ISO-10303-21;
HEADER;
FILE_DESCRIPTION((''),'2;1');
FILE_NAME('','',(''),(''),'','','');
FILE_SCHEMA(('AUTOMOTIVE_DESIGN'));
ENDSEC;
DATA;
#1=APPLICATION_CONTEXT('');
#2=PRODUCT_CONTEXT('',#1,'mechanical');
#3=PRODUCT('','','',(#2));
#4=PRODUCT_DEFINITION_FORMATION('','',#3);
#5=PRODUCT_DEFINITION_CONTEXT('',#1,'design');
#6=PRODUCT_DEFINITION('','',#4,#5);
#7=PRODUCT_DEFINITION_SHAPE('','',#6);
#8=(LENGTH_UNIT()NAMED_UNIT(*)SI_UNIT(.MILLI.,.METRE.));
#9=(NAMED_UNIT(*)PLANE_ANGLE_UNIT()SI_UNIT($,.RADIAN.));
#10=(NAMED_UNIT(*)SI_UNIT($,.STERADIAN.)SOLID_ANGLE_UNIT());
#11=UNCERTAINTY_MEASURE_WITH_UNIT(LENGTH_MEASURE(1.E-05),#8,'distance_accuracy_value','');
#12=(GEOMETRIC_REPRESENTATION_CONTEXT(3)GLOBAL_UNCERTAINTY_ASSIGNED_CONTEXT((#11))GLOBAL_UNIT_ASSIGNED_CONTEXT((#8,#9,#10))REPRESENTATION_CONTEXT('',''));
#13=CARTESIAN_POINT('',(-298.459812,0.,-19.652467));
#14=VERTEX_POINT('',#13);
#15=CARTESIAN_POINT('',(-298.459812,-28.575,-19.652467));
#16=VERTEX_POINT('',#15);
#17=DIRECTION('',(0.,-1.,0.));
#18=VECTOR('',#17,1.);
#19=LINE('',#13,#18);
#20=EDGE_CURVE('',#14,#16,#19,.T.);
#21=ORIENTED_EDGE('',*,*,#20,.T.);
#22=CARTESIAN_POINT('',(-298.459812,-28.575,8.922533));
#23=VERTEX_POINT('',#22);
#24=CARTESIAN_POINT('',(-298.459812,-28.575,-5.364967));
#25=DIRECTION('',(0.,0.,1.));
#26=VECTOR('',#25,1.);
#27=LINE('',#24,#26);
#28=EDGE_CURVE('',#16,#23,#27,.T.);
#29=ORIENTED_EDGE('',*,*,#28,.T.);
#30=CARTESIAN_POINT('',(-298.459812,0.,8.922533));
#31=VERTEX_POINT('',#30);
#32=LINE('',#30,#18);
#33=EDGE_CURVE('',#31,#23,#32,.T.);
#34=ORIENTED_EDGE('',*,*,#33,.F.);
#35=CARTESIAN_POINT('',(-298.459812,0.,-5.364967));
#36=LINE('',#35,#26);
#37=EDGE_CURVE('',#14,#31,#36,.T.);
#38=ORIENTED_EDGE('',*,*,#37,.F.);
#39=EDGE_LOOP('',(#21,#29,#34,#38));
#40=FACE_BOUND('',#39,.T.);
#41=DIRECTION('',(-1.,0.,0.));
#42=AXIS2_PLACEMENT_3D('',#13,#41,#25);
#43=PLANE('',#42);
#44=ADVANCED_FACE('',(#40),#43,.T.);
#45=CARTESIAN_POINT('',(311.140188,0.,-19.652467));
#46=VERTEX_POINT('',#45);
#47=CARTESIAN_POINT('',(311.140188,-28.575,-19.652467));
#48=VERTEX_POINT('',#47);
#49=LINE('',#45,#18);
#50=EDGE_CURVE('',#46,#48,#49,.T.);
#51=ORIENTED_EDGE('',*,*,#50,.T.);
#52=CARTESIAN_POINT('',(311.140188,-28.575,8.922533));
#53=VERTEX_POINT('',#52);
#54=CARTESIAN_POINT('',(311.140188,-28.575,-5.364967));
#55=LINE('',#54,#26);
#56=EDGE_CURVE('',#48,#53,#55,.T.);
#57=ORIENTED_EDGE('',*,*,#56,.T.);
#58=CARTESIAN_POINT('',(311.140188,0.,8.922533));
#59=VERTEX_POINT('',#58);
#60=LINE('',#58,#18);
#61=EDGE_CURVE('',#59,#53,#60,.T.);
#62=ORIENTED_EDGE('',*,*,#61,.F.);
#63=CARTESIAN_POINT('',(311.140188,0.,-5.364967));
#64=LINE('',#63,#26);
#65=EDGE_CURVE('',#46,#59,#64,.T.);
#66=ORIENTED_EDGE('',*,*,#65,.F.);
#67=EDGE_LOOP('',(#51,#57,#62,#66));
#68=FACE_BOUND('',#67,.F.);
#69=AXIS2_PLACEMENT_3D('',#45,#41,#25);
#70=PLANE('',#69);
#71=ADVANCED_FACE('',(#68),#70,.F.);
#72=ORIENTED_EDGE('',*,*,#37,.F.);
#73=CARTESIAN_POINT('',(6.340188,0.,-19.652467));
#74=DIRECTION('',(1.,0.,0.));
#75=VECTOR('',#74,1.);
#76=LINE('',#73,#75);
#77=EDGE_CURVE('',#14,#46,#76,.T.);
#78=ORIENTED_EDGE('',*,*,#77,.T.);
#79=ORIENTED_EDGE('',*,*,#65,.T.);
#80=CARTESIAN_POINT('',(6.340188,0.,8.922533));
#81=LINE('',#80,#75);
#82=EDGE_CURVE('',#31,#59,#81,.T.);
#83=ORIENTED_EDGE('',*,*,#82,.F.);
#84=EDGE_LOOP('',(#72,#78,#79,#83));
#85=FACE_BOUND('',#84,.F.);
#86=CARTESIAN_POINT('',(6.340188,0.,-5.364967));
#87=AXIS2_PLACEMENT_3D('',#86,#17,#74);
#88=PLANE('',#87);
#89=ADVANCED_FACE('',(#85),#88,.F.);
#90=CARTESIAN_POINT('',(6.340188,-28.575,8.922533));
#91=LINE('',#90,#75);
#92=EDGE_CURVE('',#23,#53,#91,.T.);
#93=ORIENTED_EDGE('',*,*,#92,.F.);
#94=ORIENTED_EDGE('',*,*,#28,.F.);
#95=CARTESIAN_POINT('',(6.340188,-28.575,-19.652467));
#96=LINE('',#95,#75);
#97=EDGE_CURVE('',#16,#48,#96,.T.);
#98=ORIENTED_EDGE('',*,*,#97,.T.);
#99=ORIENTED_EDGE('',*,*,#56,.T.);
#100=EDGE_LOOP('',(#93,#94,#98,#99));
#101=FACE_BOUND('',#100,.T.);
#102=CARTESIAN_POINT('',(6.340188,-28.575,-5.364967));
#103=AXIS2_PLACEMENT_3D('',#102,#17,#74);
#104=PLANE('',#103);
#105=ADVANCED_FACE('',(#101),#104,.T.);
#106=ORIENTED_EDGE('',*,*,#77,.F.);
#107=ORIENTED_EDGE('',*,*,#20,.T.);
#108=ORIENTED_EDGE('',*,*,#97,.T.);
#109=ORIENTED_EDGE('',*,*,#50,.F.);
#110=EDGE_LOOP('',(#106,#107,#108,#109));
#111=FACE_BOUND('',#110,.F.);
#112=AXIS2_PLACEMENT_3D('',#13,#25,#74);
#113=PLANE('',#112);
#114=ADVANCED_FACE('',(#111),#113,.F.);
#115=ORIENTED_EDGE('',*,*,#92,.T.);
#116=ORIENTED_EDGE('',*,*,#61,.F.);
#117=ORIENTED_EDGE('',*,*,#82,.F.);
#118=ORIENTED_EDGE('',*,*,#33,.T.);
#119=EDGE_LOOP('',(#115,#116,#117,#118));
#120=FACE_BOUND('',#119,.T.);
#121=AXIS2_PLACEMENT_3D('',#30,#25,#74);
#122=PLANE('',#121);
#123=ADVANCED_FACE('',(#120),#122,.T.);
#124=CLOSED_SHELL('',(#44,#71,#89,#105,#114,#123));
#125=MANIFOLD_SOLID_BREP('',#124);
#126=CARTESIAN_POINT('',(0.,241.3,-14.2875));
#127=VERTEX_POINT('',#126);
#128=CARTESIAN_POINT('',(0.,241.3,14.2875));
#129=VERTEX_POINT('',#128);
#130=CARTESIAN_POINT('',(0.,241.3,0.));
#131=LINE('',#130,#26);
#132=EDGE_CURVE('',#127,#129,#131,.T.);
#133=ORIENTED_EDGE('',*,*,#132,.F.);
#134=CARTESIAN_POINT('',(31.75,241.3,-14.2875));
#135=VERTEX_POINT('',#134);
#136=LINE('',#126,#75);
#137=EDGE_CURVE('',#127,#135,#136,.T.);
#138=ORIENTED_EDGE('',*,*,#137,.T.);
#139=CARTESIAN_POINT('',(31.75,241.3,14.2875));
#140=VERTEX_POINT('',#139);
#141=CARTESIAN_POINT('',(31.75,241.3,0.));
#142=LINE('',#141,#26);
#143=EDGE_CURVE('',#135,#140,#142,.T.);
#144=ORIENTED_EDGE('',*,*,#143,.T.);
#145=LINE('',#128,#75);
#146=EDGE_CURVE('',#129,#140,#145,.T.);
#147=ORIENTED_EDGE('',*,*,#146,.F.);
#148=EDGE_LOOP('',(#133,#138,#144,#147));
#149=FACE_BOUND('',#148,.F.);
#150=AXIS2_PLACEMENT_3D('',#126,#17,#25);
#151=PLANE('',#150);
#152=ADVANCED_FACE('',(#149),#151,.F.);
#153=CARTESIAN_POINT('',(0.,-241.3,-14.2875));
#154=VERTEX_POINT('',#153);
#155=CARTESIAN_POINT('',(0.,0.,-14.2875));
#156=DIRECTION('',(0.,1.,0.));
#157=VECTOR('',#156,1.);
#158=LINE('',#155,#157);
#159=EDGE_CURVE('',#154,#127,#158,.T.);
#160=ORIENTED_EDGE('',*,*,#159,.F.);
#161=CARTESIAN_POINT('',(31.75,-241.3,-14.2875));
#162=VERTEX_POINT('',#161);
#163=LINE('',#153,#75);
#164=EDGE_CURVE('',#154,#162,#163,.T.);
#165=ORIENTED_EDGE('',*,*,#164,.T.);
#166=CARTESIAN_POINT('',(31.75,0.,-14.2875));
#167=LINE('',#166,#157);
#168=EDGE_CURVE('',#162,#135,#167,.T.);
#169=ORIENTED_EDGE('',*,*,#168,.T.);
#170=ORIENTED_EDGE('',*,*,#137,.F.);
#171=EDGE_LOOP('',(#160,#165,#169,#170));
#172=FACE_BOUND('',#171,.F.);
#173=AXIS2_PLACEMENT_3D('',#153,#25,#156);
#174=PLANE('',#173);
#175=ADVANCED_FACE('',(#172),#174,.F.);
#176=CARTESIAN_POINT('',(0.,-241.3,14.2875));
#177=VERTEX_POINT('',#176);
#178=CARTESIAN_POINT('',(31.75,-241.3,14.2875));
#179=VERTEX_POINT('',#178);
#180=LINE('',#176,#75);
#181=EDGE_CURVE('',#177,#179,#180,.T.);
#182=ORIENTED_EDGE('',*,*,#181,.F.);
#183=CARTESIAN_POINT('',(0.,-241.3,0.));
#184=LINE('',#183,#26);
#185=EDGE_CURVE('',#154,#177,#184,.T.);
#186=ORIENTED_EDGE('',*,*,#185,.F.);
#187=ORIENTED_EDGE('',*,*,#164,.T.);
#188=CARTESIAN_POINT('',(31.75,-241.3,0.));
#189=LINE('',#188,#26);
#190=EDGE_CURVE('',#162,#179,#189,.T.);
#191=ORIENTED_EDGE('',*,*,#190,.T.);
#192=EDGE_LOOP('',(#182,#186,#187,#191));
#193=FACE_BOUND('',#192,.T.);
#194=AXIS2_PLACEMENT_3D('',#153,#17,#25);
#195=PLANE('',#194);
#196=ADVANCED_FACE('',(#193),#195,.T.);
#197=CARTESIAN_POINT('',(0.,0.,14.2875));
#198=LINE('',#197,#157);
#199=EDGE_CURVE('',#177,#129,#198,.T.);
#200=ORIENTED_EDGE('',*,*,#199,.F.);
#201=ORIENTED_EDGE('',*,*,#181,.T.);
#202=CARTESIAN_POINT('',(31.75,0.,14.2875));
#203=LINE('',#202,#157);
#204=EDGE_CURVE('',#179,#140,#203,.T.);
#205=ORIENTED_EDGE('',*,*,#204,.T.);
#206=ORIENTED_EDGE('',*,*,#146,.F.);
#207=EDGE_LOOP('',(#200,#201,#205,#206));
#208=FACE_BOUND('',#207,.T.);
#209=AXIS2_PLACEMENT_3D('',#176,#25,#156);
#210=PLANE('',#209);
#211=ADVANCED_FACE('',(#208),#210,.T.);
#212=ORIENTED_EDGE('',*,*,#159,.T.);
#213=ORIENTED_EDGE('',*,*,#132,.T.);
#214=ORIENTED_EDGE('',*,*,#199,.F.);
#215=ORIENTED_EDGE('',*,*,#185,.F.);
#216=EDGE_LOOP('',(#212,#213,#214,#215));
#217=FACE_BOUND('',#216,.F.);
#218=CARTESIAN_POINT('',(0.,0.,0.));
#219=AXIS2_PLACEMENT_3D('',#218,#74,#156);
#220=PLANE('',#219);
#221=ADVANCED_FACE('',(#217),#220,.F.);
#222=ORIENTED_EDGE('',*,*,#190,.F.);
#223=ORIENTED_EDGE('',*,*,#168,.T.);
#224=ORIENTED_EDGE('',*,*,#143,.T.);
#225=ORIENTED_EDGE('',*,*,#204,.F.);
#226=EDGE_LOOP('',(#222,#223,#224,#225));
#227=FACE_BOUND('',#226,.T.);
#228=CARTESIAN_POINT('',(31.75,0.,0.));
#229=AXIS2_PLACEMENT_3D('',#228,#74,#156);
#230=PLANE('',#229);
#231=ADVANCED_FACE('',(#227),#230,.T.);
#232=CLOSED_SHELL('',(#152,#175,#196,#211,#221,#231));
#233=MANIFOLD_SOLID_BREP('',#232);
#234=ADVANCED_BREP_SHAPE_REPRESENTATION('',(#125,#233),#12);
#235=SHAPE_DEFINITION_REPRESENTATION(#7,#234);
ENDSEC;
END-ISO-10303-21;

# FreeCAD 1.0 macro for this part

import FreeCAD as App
import Part
import Sketcher
from FreeCAD import Vector
Q = App.Units.Quantity

doc = App.newDocument("Part")
body = doc.addObject("PartDesign::Body", "Body")

sketch1 = body.newObject("Sketcher::SketchObject", "Sketch")
sketch1.AttachmentSupport = (doc.getObject("XZ_Plane"), [""])
sketch1.MapMode = "FlatFace"
sketch1.addGeometry([
    Part.LineSegment(Vector(-298.459812, 8.922533, 0), Vector(-298.459812, -19.652467, 0)),
    Part.LineSegment(Vector(-298.459812, -19.652467, 0), Vector(311.140188, -19.652467, 0)),
    Part.LineSegment(Vector(311.140188, -19.652467, 0), Vector(311.140188, 8.922533, 0)),
    Part.LineSegment(Vector(311.140188, 8.922533, 0), Vector(-298.459812, 8.922533, 0)),
], False)
sketch1.addConstraint([
    Sketcher.Constraint("Coincident", 0, 2, 1, 1),
    Sketcher.Constraint("Coincident", 1, 2, 2, 1),
    Sketcher.Constraint("Coincident", 2, 2, 3, 1),
    Sketcher.Constraint("Coincident", 3, 2, 0, 1),
    Sketcher.Constraint("Vertical", 0),
    Sketcher.Constraint("Horizontal", 1),
    Sketcher.Constraint("Vertical", 2),
    Sketcher.Constraint("Horizontal", 3),
    Sketcher.Constraint("DistanceX", 1, 1, 1, 2, Q("24 in")),
    Sketcher.Constraint("DistanceY", 0, 2, 0, 1, Q("1.125 in")),
    Sketcher.Constraint("DistanceX", 0, 2, -1, 1, Q("298.459812 mm")),
    Sketcher.Constraint("DistanceY", 0, 2, -1, 1, Q("19.652467 mm")),
])
pad1 = body.newObject("PartDesign::Pad", "Pad")
pad1.Profile = sketch1
pad1.Length = Q("1.125 in")
body2 = doc.addObject("PartDesign::Body", "Body001")

sketch2 = body2.newObject("Sketcher::SketchObject", "Sketch001")
sketch2.AttachmentSupport = (doc.getObject("YZ_Plane001"), [""])
sketch2.MapMode = "FlatFace"
sketch2.addGeometry([
    Part.LineSegment(Vector(-241.3, 14.2875, 0), Vector(-241.3, -14.2875, 0)),
    Part.LineSegment(Vector(-241.3, -14.2875, 0), Vector(241.3, -14.2875, 0)),
    Part.LineSegment(Vector(241.3, -14.2875, 0), Vector(241.3, 14.2875, 0)),
    Part.LineSegment(Vector(241.3, 14.2875, 0), Vector(-241.3, 14.2875, 0)),
], False)
sketch2.addConstraint([
    Sketcher.Constraint("Coincident", 0, 2, 1, 1),
    Sketcher.Constraint("Coincident", 1, 2, 2, 1),
    Sketcher.Constraint("Coincident", 2, 2, 3, 1),
    Sketcher.Constraint("Coincident", 3, 2, 0, 1),
    Sketcher.Constraint("Vertical", 0),
    Sketcher.Constraint("Horizontal", 1),
    Sketcher.Constraint("Vertical", 2),
    Sketcher.Constraint("Horizontal", 3),
    Sketcher.Constraint("Symmetric", 0, 2, 2, 2, -1, 1),
    Sketcher.Constraint("DistanceX", 1, 1, 1, 2, Q("19 in")),
    Sketcher.Constraint("DistanceY", 0, 2, 0, 1, Q("1.125 in")),
])
pad2 = body2.newObject("PartDesign::Pad", "Pad001")
pad2.Profile = sketch2
pad2.Length = Q("1.25 in")

doc.recompute()
